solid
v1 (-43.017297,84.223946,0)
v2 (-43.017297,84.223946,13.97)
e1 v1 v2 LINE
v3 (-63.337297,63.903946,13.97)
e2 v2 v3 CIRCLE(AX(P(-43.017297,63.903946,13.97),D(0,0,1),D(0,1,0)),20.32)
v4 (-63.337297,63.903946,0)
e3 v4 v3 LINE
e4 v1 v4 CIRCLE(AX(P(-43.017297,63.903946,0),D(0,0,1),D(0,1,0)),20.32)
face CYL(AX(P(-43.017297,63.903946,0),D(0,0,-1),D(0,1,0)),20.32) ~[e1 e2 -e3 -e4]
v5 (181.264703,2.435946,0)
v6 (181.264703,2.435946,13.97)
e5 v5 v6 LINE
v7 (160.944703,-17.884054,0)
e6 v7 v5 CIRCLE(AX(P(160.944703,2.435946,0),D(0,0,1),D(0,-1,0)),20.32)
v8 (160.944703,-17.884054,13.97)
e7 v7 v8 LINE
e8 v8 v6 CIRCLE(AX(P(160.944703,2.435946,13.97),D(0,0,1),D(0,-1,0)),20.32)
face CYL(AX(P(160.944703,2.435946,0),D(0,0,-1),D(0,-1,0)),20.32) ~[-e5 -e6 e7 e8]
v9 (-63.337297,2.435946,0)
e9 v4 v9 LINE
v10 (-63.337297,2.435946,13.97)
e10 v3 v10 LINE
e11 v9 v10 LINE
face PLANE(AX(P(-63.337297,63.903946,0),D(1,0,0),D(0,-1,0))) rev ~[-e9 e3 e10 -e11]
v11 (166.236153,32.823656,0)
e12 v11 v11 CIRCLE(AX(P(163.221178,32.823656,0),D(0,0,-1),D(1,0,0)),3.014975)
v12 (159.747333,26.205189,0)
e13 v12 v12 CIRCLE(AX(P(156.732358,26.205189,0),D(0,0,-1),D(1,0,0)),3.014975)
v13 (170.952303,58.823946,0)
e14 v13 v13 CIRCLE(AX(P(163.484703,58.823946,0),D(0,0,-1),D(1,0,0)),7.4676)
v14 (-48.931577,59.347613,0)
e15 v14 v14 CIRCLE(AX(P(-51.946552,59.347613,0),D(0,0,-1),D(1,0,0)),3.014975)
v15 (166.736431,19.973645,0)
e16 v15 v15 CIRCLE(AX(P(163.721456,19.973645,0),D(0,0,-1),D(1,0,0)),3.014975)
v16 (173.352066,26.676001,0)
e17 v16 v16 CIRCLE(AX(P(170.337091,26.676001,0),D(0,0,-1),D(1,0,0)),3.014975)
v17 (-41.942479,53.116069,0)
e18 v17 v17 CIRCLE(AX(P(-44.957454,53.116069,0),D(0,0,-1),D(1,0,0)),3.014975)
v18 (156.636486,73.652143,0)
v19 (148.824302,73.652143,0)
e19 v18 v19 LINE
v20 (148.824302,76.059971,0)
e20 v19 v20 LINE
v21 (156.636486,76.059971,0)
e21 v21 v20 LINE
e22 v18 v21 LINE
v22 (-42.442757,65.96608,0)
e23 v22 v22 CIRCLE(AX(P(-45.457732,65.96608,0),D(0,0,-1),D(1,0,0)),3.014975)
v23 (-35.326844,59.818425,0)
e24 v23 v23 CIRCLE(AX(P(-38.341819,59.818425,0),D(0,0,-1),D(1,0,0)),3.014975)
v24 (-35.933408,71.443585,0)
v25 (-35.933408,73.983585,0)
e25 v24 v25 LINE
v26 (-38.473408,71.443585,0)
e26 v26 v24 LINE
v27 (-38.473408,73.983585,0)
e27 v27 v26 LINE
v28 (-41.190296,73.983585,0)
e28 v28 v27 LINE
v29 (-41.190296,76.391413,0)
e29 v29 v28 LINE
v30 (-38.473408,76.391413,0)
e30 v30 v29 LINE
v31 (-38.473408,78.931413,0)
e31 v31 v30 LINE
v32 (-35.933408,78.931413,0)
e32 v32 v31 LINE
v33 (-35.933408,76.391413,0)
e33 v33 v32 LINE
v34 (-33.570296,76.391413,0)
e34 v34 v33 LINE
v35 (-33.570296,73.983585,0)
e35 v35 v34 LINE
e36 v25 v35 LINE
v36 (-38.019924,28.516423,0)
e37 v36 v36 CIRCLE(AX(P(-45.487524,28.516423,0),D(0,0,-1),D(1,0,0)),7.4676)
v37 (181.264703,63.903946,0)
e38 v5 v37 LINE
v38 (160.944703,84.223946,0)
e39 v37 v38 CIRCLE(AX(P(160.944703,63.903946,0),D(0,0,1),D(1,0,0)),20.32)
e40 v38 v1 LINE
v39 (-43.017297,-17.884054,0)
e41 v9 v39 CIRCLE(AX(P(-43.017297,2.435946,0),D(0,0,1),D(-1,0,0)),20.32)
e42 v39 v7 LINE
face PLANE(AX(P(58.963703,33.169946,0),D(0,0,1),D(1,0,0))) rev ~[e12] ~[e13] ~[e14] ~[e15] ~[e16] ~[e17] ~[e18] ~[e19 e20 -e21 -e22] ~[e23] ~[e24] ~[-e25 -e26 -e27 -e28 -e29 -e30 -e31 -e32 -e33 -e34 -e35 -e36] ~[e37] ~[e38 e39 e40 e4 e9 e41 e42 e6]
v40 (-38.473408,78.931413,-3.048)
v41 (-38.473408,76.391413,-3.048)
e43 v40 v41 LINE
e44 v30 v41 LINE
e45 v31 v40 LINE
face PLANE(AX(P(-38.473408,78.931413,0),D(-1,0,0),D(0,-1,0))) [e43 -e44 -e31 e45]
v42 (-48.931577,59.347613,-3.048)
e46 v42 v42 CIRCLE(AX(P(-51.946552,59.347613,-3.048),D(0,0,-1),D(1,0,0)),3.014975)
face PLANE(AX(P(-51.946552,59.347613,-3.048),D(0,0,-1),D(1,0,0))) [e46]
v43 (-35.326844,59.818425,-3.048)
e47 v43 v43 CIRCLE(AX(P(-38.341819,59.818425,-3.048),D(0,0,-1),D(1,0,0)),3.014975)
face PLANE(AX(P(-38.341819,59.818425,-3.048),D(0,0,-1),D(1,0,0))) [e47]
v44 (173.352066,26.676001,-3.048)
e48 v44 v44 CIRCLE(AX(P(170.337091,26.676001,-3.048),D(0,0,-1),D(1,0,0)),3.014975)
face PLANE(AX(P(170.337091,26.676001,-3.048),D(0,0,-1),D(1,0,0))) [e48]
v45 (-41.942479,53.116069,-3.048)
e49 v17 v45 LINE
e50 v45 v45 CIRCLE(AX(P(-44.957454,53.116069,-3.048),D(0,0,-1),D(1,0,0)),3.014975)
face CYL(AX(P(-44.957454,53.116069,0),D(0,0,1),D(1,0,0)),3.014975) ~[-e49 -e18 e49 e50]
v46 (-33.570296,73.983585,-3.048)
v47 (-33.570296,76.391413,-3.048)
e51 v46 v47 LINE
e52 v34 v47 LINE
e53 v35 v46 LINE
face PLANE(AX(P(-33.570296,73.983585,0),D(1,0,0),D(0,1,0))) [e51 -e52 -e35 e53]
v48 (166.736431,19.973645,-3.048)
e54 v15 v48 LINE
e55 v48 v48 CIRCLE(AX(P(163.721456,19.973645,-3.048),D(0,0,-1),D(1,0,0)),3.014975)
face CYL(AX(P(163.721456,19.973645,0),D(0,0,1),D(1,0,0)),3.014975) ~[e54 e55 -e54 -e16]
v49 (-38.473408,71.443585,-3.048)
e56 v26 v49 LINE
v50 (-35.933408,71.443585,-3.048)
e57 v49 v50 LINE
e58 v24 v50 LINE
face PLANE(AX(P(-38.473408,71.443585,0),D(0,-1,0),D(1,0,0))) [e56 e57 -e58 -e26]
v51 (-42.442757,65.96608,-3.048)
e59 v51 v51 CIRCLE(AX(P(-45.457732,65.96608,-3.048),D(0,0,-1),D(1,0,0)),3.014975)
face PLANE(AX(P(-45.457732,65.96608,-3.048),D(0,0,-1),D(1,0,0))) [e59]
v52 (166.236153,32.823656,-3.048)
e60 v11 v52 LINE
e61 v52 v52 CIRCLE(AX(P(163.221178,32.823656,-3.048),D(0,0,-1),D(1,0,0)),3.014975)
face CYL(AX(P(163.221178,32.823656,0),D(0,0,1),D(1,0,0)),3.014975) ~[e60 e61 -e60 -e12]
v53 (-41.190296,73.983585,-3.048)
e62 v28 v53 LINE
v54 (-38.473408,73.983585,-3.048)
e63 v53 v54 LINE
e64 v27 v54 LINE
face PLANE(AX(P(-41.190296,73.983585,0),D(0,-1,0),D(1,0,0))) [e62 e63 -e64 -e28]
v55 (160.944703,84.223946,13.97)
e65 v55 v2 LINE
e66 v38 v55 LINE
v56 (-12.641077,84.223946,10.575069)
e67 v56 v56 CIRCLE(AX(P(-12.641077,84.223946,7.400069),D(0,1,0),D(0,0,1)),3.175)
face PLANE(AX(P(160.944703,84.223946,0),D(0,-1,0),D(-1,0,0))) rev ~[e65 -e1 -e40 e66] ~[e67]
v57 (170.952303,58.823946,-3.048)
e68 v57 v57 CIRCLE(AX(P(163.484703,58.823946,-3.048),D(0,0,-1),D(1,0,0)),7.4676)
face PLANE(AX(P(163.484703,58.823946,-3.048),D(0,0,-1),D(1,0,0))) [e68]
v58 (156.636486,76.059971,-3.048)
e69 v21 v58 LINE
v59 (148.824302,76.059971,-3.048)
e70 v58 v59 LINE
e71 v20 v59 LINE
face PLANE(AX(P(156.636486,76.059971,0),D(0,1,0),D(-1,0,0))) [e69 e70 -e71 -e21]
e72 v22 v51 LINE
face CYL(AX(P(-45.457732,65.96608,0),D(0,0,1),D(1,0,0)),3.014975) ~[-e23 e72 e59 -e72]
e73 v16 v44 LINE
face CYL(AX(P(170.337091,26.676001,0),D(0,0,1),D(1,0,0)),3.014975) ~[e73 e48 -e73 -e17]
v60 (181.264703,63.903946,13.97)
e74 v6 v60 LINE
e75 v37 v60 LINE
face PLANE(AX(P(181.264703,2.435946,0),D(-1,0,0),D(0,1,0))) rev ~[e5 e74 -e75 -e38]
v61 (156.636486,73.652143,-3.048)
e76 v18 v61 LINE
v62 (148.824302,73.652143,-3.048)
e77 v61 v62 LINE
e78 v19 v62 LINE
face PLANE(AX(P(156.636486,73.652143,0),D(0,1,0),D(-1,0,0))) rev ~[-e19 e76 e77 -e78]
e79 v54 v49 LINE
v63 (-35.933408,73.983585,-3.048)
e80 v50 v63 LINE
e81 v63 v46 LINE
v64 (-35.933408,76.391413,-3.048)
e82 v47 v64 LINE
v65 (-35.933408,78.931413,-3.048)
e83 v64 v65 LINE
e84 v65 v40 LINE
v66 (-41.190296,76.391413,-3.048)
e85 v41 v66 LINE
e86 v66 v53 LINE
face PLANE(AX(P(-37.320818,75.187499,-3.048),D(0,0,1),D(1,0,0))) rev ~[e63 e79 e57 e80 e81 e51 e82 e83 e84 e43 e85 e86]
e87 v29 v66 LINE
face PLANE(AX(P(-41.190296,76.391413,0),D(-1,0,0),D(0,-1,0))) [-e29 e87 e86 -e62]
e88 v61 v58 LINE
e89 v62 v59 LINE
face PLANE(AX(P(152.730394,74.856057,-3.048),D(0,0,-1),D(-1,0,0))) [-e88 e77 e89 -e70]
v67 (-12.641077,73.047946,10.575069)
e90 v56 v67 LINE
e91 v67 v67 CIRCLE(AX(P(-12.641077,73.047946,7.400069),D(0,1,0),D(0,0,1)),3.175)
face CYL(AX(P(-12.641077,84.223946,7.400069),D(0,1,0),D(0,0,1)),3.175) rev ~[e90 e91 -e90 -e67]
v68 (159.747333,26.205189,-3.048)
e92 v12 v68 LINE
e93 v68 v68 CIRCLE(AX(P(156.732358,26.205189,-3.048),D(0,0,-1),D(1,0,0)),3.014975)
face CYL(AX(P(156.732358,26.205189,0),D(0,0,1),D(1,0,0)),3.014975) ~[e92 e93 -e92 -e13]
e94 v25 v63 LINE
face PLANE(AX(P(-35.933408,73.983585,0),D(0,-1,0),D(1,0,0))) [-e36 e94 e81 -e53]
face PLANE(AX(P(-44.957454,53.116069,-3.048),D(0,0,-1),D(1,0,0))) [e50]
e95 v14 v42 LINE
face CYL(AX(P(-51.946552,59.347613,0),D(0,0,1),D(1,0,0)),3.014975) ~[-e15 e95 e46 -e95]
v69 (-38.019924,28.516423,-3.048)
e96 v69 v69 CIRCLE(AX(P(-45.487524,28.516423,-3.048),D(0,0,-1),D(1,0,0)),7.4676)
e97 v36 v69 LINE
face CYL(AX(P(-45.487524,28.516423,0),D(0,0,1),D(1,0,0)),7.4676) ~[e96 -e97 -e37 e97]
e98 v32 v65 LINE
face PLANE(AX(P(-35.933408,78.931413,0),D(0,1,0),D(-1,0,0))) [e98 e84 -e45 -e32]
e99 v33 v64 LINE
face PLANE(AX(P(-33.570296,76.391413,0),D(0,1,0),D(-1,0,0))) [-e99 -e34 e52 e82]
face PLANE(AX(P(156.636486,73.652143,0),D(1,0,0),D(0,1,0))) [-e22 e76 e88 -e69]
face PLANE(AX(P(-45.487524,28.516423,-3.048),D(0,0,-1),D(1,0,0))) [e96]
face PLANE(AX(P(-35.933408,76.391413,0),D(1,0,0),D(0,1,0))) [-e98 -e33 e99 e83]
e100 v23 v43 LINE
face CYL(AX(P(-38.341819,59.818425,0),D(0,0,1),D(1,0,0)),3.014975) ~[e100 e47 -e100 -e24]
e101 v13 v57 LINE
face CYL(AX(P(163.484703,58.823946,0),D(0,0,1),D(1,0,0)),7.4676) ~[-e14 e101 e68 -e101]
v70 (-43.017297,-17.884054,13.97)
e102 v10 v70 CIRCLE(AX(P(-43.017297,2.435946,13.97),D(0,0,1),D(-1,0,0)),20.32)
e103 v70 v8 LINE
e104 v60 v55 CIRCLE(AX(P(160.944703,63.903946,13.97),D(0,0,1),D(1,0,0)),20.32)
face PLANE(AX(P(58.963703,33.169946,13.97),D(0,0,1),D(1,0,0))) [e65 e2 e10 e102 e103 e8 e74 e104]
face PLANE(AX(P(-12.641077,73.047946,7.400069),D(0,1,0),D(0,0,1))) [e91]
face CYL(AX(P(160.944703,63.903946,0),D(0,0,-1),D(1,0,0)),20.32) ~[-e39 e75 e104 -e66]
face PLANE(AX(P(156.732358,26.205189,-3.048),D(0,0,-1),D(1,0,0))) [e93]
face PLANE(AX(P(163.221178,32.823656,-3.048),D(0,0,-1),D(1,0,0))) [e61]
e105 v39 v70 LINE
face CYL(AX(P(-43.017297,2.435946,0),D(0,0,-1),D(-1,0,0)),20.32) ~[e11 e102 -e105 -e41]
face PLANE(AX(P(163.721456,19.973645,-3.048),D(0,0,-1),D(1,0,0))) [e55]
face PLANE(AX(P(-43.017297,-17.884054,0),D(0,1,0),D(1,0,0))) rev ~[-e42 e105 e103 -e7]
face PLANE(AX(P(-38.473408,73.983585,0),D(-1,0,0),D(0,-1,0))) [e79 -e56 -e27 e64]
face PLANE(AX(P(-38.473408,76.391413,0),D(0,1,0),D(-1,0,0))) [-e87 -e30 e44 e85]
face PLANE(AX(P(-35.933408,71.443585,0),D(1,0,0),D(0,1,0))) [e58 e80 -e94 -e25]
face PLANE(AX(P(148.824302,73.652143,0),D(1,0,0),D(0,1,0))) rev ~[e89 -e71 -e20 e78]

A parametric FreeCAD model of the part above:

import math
import FreeCAD as App
import Part
import Sketcher
from FreeCAD import Vector
Q = App.Units.Quantity


def add_polygon(sketch, points):
    """Adds a closed chain of lines whose ends are joined by coincident constraints."""
    first, n = sketch.GeometryCount, len(points)
    for a, b in zip(points, points[1:] + points[:1]):
        sketch.addGeometry(Part.LineSegment(App.Vector(*a, 0), App.Vector(*b, 0)), False)
    for i in range(n):
        sketch.addConstraint(Sketcher.Constraint("Coincident", first + i, 2, first + (i + 1) % n, 1))

doc = App.newDocument("Part")
body = doc.addObject("PartDesign::Body", "Body")

# Sketch on XY plane
sketch1 = body.newObject("Sketcher::SketchObject", "Sketch")
sketch1.AttachmentSupport = (doc.getObject("XY_Plane"), [""])
sketch1.MapMode = "FlatFace"
sketch1.addGeometry([
    Part.ArcOfCircle(Part.Circle(Vector(-43, 64, 0), Vector(0, 0, 1), 20), math.radians(90), math.radians(180)),  # 0
    Part.LineSegment(Vector(-63, 64, 0), Vector(-63, 2, 0)),  # 1
    Part.ArcOfCircle(Part.Circle(Vector(-43, 2, 0), Vector(0, 0, 1), 20), math.radians(180), math.radians(270)),  # 2
    Part.LineSegment(Vector(-43, -18, 0), Vector(161, -18, 0)),  # 3
    Part.ArcOfCircle(Part.Circle(Vector(161, 2, 0), Vector(0, 0, 1), 20), math.radians(-90), math.radians(0)),  # 4
    Part.LineSegment(Vector(181, 2, 0), Vector(181, 64, 0)),  # 5
    Part.ArcOfCircle(Part.Circle(Vector(161, 64, 0), Vector(0, 0, 1), 20), math.radians(0), math.radians(90)),  # 6
    Part.LineSegment(Vector(161, 84, 0), Vector(-43, 84, 0)),  # 7
], False)
sketch1.addConstraint([
    Sketcher.Constraint("Tangent", 0, 2, 1, 1),
    Sketcher.Constraint("Tangent", 1, 2, 2, 1),
    Sketcher.Constraint("Tangent", 2, 2, 3, 1),
    Sketcher.Constraint("Tangent", 3, 2, 4, 1),
    Sketcher.Constraint("Tangent", 4, 2, 5, 1),
    Sketcher.Constraint("Tangent", 5, 2, 6, 1),
    Sketcher.Constraint("Tangent", 6, 2, 7, 1),
    Sketcher.Constraint("Tangent", 7, 2, 0, 1),
    Sketcher.Constraint("Vertical", 1),
    Sketcher.Constraint("Horizontal", 3),
    Sketcher.Constraint("Vertical", 5),
    Sketcher.Constraint("Horizontal", 7),
    Sketcher.Constraint("Equal", 0, 2),
    Sketcher.Constraint("Equal", 2, 4),
    Sketcher.Constraint("Equal", 4, 6),
    Sketcher.Constraint("Radius", 0, Q("0.8 in")),
    Sketcher.Constraint("DistanceX", 3, 1, 3, 2, Q("8.03 in")),
    Sketcher.Constraint("DistanceY", 1, 2, 1, 1, Q("2.42 in")),
    Sketcher.Constraint("DistanceX", 0, 3, -1, 1, 43.017297),
    Sketcher.Constraint("DistanceY", -1, 1, 0, 3, 63.903946),
])
pad1 = body.newObject("PartDesign::Pad", "Pad")
pad1.Profile = sketch1
pad1.Length = Q("0.55 in")

# Sketch on XY plane
sketch2 = body.newObject("Sketcher::SketchObject", "Sketch001")
sketch2.AttachmentSupport = (doc.getObject("XY_Plane"), [""])
sketch2.MapMode = "FlatFace"
sketch2.addGeometry(Part.Circle(Vector(163.5, 58.8, 0), Vector(0, 0, 1), 7.5), False)  # 0
sketch2.addGeometry(Part.Circle(Vector(170.3, 26.7, 0), Vector(0, 0, 1), 3), False)  # 1
sketch2.addGeometry(Part.Circle(Vector(163.2, 32.8, 0), Vector(0, 0, 1), 3), False)  # 2
sketch2.addGeometry(Part.Circle(Vector(156.7, 26.2, 0), Vector(0, 0, 1), 3), False)  # 3
sketch2.addGeometry(Part.Circle(Vector(163.7, 20, 0), Vector(0, 0, 1), 3), False)  # 4
add_polygon(sketch2, [(156.6, 76.1), (156.6, 73.7), (148.8, 73.7), (148.8, 76.1)])  # lines 5-8
sketch2.addConstraint([
    Sketcher.Constraint("Vertical", 5),
    Sketcher.Constraint("Horizontal", 6),
    Sketcher.Constraint("Vertical", 7),
    Sketcher.Constraint("Horizontal", 8),
    Sketcher.Constraint("Equal", 1, 2),
    Sketcher.Constraint("Equal", 2, 3),
    Sketcher.Constraint("Equal", 3, 4),
    Sketcher.Constraint("Diameter", 0, Q("0.588 in")),
    Sketcher.Constraint("Diameter", 1, 6.02995),
    Sketcher.Constraint("DistanceY", -1, 1, 1, 3, 26.676001),
    Sketcher.Constraint("DistanceX", -1, 1, 6, 2, 148.824302),
    Sketcher.Constraint("DistanceY", 4, 3, 0, 3, 38.850302),
    Sketcher.Constraint("DistanceY", 4, 3, 5, 2, 53.678498),
    Sketcher.Constraint("DistanceX", 6, 2, 0, 3, 14.660401),
    Sketcher.Constraint("DistanceX", 6, 2, 6, 1, 7.812184),
    Sketcher.Constraint("DistanceY", 5, 2, 5, 1, 2.407828),
    Sketcher.Constraint("DistanceX", -1, 1, 1, 3, 170.337091),
    Sketcher.Constraint("DistanceX", -1, 1, 3, 3, 156.732358),
    Sketcher.Constraint("DistanceY", -1, 1, 3, 3, 26.205189),
    Sketcher.Constraint("DistanceY", -1, 1, 7, 2, 76.059971),
    Sketcher.Constraint("DistanceY", 2, 3, 0, 3, 26.00029),
    Sketcher.Constraint("DistanceX", 3, 3, 2, 3, 6.48882),
    Sketcher.Constraint("DistanceX", 5, 2, 4, 3, 7.08497),
])
pad2 = body.newObject("PartDesign::Pad", "Pad001")
pad2.Profile = sketch2
pad2.Length = Q("0.12 in")
pad2.Reversed = True

# Sketch on XY plane
sketch3 = body.newObject("Sketcher::SketchObject", "Sketch002")
sketch3.AttachmentSupport = (doc.getObject("XY_Plane"), [""])
sketch3.MapMode = "FlatFace"
sketch3.addGeometry(Part.Circle(Vector(-45.5, 28.5, 0), Vector(0, 0, 1), 7.5), False)  # 0
sketch3.addGeometry(Part.Circle(Vector(-45, 53.1, 0), Vector(0, 0, 1), 3), False)  # 1
sketch3.addGeometry(Part.Circle(Vector(-38.3, 59.8, 0), Vector(0, 0, 1), 3), False)  # 2
sketch3.addGeometry(Part.Circle(Vector(-45.5, 66, 0), Vector(0, 0, 1), 3), False)  # 3
sketch3.addGeometry(Part.Circle(Vector(-51.9, 59.3, 0), Vector(0, 0, 1), 3), False)  # 4
add_polygon(sketch3, [(-41.2, 76.4), (-38.5, 76.4), (-38.5, 78.9), (-35.9, 78.9), (-35.9, 76.4), (-33.6, 76.4), (-33.6, 74), (-35.9, 74), (-35.9, 71.4), (-38.5, 71.4), (-38.5, 74), (-41.2, 74)])  # lines 5-16
sketch3.addConstraint([
    Sketcher.Constraint("Horizontal", 5),
    Sketcher.Constraint("Vertical", 6),
    Sketcher.Constraint("Horizontal", 7),
    Sketcher.Constraint("Vertical", 8),
    Sketcher.Constraint("Horizontal", 9),
    Sketcher.Constraint("Vertical", 10),
    Sketcher.Constraint("Horizontal", 11),
    Sketcher.Constraint("Vertical", 12),
    Sketcher.Constraint("Horizontal", 13),
    Sketcher.Constraint("Vertical", 14),
    Sketcher.Constraint("Horizontal", 15),
    Sketcher.Constraint("Vertical", 16),
    Sketcher.Constraint("Equal", 1, 2),
    Sketcher.Constraint("Equal", 2, 3),
    Sketcher.Constraint("Equal", 3, 4),
    Sketcher.Constraint("Horizontal", 5, 2, 8, 2),
    Sketcher.Constraint("Horizontal", 11, 2, 14, 2),
    Sketcher.Constraint("Vertical", 8, 2, 11, 2),
    Sketcher.Constraint("Vertical", 6, 2, 13, 2),
    Sketcher.Constraint("Equal", 13, 6),
    Sketcher.Constraint("Equal", 8, 12),
    Sketcher.Constraint("Diameter", 0, Q("0.588 in")),
    Sketcher.Constraint("DistanceX", 7, 1, 7, 2, Q("0.1 in")),
    Sketcher.Constraint("Diameter", 1, 6.02995),
    Sketcher.Constraint("DistanceY", 0, 3, 2, 3, 31.302002),
    Sketcher.Constraint("DistanceY", 4, 3, 5, 2, 17.0438),
    Sketcher.Constraint("DistanceX", 5, 1, 5, 2, 2.716888),
    Sketcher.Constraint("DistanceX", 9, 1, 9, 2, 2.363112),
    Sketcher.Constraint("DistanceY", 10, 2, 10, 1, 2.407828),
    Sketcher.Constraint("DistanceY", -1, 1, 1, 3, 53.116069),
    Sketcher.Constraint("DistanceX", 2, 3, -1, 1, 38.341819),
    Sketcher.Constraint("DistanceY", -1, 1, 3, 3, 65.96608),
    Sketcher.Constraint("DistanceX", 4, 3, -1, 1, 51.946552),
    Sketcher.Constraint("DistanceX", 5, 2, -1, 1, 38.473408),
    Sketcher.Constraint("DistanceX", 0, 3, 1, 3, 0.530069),
    Sketcher.Constraint("DistanceX", 0, 3, 3, 3, 0.029792),
    Sketcher.Constraint("DistanceX", 4, 3, 3, 3, 6.48882),
    Sketcher.Constraint("DistanceY", 0, 3, 4, 3, 30.83119),
    Sketcher.Constraint("DistanceY", -1, 1, 0, 3, 28.516423),
])
pad3 = body.newObject("PartDesign::Pad", "Pad002")
pad3.Profile = sketch3
pad3.Length = Q("0.12 in")
pad3.Reversed = True

# Sketch on XZ plane
sketch4 = body.newObject("Sketcher::SketchObject", "Sketch003")
sketch4.AttachmentSupport = (doc.getObject("XZ_Plane"), [""])
sketch4.MapMode = "FlatFace"
sketch4.AttachmentOffset = App.Placement(Vector(0, 0, -84.223946), App.Rotation())
sketch4.addGeometry(Part.Circle(Vector(-12.6, 7.4, 0), Vector(0, 0, 1), 3.2), False)
sketch4.addConstraint([
    Sketcher.Constraint("Diameter", 0, Q("0.25 in")),
    Sketcher.Constraint("DistanceY", -1, 1, 0, 3, 7.400069),
    Sketcher.Constraint("DistanceX", 0, 3, -1, 1, 12.641077),
])
pocket1 = body.newObject("PartDesign::Pocket", "Pocket")
pocket1.Profile = sketch4
pocket1.Length = Q("0.44 in")
pocket1.Reversed = True

doc.recompute()
